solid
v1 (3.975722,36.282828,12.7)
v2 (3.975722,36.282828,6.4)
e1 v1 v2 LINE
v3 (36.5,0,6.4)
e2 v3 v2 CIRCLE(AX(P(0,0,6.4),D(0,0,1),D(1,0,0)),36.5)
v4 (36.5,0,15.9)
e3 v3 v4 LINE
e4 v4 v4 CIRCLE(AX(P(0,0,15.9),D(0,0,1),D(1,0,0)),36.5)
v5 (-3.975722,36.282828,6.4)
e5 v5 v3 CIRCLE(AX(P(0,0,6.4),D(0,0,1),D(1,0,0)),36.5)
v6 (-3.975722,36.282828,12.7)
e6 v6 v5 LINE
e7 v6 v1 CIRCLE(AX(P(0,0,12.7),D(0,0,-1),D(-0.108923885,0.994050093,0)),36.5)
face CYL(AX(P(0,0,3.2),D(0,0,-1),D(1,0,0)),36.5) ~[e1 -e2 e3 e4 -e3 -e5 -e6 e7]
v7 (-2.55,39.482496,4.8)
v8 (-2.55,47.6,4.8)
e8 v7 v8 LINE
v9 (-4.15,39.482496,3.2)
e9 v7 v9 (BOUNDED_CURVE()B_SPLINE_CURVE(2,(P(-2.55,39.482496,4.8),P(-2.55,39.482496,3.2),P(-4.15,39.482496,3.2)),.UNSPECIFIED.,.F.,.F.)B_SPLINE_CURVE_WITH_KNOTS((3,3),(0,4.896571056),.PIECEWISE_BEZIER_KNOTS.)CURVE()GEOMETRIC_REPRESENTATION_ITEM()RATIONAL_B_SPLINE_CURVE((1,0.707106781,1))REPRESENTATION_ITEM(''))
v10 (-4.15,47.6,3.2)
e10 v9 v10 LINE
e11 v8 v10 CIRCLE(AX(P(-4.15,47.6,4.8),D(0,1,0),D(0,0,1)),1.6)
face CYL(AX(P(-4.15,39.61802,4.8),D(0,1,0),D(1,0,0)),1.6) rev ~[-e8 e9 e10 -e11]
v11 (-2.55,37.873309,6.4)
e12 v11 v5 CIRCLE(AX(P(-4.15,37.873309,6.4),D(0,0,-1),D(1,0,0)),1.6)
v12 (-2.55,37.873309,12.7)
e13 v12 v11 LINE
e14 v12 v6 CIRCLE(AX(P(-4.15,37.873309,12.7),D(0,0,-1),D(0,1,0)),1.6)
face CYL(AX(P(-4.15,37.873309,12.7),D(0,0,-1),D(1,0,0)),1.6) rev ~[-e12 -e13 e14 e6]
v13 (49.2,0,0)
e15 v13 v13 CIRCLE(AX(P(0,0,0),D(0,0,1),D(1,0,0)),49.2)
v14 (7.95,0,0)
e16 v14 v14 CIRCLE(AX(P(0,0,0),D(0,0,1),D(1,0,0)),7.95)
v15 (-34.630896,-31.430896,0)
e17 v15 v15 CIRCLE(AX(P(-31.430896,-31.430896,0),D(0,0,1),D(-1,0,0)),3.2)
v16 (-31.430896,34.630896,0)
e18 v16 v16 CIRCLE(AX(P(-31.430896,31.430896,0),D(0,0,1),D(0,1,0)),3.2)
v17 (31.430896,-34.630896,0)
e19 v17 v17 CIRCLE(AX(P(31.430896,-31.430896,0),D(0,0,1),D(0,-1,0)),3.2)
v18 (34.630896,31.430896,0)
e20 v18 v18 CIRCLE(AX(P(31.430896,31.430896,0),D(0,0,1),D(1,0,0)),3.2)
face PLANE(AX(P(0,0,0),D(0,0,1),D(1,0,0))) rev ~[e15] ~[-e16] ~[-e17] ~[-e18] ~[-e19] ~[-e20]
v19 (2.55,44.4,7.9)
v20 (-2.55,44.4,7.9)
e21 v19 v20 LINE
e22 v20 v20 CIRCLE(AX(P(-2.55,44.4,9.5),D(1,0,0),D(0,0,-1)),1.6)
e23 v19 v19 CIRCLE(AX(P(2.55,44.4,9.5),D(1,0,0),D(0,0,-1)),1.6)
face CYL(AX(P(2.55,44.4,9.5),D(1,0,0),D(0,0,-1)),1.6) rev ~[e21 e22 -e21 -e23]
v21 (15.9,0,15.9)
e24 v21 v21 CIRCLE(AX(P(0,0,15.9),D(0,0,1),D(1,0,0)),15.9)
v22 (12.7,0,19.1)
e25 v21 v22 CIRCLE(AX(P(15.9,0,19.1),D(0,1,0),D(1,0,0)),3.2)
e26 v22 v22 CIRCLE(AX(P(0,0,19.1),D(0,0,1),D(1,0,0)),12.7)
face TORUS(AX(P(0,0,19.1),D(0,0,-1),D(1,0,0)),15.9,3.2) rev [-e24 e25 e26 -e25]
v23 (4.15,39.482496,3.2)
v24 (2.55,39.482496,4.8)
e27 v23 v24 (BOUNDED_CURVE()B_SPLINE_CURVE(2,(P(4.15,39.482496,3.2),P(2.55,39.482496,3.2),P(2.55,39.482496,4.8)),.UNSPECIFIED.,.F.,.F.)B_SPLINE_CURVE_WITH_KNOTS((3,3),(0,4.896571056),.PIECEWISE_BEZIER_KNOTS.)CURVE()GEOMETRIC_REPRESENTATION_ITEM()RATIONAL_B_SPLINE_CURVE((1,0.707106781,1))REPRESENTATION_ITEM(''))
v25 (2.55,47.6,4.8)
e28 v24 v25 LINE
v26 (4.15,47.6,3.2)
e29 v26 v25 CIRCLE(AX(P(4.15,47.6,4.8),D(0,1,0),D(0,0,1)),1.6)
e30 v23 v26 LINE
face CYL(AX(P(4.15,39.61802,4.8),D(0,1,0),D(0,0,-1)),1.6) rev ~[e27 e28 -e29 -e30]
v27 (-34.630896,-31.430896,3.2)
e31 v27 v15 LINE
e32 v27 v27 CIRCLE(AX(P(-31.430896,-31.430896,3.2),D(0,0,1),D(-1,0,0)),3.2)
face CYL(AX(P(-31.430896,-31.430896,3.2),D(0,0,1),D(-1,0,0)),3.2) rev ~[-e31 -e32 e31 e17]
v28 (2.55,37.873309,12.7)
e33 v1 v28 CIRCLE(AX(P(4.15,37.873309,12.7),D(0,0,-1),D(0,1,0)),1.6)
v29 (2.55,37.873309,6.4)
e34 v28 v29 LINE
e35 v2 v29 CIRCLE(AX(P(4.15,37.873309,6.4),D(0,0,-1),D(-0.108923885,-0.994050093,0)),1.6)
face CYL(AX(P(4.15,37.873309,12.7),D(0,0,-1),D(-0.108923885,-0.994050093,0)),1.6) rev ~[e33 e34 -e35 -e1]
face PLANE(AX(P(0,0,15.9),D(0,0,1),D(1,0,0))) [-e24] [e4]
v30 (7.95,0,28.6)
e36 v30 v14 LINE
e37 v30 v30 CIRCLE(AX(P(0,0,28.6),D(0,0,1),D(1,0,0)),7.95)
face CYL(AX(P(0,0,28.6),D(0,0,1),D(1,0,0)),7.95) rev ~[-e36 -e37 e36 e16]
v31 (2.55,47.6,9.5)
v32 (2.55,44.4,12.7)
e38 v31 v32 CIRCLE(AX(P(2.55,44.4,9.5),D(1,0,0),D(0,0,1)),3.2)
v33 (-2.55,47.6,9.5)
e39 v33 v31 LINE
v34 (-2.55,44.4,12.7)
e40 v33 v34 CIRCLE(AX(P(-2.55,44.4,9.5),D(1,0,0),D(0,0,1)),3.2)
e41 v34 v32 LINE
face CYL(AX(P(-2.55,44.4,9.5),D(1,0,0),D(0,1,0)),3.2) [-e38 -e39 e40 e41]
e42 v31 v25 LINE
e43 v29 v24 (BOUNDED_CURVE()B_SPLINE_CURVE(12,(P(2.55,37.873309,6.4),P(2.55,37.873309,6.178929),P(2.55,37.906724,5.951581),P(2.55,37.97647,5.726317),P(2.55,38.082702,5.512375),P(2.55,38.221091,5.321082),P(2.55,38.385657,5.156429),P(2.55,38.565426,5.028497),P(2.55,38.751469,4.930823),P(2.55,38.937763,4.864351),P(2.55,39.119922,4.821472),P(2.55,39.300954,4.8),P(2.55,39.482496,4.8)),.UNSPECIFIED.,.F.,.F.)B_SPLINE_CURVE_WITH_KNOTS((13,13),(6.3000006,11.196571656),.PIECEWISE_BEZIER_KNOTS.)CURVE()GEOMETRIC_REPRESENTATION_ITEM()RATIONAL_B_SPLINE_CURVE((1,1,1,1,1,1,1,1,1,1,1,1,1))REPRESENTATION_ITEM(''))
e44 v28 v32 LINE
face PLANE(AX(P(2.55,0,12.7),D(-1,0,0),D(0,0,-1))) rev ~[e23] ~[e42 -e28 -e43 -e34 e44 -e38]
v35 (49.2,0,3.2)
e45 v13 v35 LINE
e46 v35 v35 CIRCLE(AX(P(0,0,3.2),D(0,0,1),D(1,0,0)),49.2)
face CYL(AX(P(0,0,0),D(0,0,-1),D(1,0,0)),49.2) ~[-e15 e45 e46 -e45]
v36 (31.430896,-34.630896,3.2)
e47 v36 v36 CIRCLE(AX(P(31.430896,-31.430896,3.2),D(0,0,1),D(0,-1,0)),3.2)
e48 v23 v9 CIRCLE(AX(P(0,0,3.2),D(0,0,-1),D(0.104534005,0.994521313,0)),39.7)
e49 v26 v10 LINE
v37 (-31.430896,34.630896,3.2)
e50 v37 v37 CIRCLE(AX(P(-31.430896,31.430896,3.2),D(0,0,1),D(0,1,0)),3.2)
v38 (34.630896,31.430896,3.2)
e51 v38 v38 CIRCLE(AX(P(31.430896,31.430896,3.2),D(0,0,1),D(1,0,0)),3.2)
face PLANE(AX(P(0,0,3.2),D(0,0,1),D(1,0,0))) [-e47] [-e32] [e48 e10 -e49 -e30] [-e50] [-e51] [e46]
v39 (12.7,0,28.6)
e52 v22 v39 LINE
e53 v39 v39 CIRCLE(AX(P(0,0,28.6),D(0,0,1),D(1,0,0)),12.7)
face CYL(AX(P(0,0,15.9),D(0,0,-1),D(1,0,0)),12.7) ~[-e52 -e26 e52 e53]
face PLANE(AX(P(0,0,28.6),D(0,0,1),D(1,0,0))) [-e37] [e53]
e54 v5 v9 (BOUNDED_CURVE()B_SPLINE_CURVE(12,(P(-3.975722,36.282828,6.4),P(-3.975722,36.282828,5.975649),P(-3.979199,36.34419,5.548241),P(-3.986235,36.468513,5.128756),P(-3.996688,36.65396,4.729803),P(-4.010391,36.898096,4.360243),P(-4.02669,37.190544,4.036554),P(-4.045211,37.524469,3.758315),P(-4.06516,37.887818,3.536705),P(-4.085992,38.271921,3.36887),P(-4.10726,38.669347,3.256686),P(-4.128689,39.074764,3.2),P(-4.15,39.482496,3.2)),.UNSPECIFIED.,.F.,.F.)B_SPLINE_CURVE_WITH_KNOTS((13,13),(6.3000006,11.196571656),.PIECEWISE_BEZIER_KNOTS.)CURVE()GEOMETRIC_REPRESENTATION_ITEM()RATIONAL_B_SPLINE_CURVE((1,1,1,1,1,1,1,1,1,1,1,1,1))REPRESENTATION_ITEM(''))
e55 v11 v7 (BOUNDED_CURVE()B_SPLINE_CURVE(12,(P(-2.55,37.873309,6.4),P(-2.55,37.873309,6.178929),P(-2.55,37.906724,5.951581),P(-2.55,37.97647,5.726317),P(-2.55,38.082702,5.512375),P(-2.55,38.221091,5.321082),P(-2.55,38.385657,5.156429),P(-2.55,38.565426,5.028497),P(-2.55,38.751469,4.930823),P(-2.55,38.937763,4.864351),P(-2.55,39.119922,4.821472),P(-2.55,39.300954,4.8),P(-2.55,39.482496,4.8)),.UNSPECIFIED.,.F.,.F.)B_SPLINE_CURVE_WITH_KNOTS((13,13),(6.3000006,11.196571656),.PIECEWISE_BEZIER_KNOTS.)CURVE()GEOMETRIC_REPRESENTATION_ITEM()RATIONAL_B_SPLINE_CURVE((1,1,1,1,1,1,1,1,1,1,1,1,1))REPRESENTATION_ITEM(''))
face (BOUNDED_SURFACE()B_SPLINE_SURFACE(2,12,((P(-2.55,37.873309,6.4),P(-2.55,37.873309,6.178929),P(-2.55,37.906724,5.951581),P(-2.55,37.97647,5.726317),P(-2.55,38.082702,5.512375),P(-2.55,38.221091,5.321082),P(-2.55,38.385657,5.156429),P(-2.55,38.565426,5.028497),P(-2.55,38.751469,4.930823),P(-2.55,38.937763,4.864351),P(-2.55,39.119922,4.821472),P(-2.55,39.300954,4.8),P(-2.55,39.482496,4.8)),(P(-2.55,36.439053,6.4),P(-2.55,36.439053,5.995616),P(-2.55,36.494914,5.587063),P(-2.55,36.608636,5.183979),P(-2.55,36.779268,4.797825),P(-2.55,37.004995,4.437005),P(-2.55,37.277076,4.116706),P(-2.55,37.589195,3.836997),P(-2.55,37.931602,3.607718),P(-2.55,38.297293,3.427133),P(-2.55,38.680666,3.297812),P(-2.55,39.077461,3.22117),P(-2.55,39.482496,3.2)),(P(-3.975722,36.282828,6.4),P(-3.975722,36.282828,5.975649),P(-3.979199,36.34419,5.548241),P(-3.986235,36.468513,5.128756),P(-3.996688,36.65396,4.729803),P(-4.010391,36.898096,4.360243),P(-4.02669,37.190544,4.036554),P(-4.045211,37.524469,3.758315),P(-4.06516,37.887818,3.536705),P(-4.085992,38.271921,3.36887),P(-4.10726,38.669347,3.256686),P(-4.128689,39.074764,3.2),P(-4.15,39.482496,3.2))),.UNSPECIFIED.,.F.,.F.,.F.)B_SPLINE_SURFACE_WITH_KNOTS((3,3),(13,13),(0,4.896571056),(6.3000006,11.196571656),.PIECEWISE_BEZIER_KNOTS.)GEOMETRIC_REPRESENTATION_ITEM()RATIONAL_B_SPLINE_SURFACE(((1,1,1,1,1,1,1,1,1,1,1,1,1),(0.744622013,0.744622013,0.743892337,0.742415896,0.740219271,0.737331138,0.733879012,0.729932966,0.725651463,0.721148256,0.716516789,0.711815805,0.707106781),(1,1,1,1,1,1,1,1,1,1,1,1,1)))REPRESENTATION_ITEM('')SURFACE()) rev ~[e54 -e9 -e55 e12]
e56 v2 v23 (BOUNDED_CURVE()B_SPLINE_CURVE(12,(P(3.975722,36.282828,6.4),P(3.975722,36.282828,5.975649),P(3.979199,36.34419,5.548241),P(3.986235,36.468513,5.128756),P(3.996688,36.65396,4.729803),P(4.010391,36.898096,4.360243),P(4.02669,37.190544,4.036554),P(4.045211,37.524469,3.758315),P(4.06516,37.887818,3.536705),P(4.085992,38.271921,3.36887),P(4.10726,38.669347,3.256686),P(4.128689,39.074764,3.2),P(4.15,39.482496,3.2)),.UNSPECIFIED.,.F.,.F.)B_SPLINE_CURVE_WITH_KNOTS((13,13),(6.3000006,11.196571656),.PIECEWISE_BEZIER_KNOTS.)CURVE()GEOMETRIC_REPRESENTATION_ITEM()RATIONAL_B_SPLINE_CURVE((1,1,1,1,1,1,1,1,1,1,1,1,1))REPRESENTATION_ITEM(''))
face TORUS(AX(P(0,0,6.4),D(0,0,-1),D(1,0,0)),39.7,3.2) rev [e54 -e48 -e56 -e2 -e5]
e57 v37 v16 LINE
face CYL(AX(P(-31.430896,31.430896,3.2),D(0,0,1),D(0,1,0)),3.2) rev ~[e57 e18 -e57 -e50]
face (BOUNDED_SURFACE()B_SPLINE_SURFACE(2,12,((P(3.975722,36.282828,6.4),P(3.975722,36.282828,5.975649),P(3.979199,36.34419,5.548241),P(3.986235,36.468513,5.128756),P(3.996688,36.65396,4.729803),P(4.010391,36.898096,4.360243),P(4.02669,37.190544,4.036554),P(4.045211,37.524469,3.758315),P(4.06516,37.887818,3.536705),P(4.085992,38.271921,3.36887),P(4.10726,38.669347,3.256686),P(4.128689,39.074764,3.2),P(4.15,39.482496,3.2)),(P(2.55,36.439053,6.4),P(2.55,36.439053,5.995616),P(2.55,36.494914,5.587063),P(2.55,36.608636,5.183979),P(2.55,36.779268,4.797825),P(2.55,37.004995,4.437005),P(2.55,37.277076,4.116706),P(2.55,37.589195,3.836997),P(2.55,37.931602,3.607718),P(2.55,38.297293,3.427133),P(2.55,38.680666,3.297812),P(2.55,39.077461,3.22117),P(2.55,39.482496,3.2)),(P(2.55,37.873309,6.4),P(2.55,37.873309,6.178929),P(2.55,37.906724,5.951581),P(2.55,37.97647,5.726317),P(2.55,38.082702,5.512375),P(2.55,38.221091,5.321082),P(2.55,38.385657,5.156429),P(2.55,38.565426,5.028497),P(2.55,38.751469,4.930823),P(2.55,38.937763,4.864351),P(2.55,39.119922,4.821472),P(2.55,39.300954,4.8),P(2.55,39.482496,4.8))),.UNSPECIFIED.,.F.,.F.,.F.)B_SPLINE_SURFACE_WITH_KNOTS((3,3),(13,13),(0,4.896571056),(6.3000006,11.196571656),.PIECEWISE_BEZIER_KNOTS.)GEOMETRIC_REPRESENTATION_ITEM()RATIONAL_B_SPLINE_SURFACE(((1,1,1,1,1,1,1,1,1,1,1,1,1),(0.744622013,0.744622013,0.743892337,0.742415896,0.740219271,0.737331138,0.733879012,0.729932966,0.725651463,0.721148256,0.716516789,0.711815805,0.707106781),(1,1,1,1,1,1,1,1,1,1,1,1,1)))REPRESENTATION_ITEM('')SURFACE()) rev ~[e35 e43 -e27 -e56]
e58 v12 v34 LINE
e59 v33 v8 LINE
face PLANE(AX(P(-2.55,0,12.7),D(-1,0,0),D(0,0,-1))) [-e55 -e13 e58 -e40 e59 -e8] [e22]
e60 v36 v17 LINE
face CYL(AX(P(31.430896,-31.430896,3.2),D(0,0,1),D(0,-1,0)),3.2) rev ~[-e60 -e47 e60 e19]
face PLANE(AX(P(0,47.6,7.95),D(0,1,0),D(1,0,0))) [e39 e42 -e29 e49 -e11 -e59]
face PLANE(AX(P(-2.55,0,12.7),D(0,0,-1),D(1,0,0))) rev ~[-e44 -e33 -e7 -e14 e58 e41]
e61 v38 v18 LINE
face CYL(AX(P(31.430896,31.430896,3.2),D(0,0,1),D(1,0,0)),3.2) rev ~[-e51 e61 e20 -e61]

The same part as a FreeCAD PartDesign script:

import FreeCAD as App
import Part
import Sketcher
from FreeCAD import Vector
Q = App.Units.Quantity


def edges_at(feature, points):
    """Names of the edges that pass closest to the given points."""
    edges = feature.Shape.Edges
    near = lambda p: min(range(len(edges)), key=lambda i: edges[i].distToShape(Part.Vertex(*p))[0])
    return sorted({f"Edge{near(p) + 1}" for p in points})


def add_polygon(sketch, points):
    """Adds a closed chain of lines whose ends are joined by coincident constraints."""
    first, n = sketch.GeometryCount, len(points)
    for a, b in zip(points, points[1:] + points[:1]):
        sketch.addGeometry(Part.LineSegment(App.Vector(*a, 0), App.Vector(*b, 0)), False)
    for i in range(n):
        sketch.addConstraint(Sketcher.Constraint("Coincident", first + i, 2, first + (i + 1) % n, 1))

doc = App.newDocument("Part")
params = doc.addObject("Spreadsheet::Sheet", "Params")
for row, (alias, value) in enumerate([
    ("sketch1_diameter", "98.4 mm"),
    ("pad1_length", "3.2 mm"),
    ("sketch2_diameter", "6.4 mm"),
    ("sketch3_diameter", "73 mm"),
    ("pad2_length", "12.7 mm"),
    ("sketch4_diameter", "25.4 mm"),
    ("pad3_length", "12.7 mm"),
    ("fillet_radius", "3.2 mm"),
    ("sketch5_width", "5.1 mm"),
    ("sketch5_height", "9.5 mm"),
    ("pad4_length", "47.6 mm"),
    ("sketch6_diameter", "15.9 mm"),
    ("fillet2_radius", "3.2 mm"),
    ("sketch7_diameter", "3.2 mm"),
    ("fillet3_radius", "1.6 mm"),
], start=1):
    params.set(f"A{row}", alias)
    params.set(f"B{row}", "=" + value)
    params.setAlias(f"B{row}", alias)

body = doc.addObject("PartDesign::Body", "Body")

# Sketch on XY plane
sketch1 = doc.addObject("Sketcher::SketchObject", "Sketch")
body.addObject(sketch1)
sketch1.AttachmentSupport = (doc.XY_Plane, [""])
sketch1.MapMode = "FlatFace"
sketch1.addGeometry(Part.Circle(Vector(0, 0, 0), Vector(0, 0, 1), 49), False)
sketch1.addConstraint([
    Sketcher.Constraint("Coincident", 0, 3, -1, 1),
    Sketcher.Constraint("Diameter", 0, Q("98.4 mm")),
])
sketch1.setExpression("Constraints[1]", "Params.sketch1_diameter")
pad1 = doc.addObject("PartDesign::Pad", "Pad")
body.addObject(pad1)
pad1.Profile = sketch1
pad1.setExpression("Length", "Params.pad1_length")

# Sketch on XY plane
sketch2 = doc.addObject("Sketcher::SketchObject", "Sketch001")
body.addObject(sketch2)
sketch2.AttachmentSupport = (doc.XY_Plane, [""])
sketch2.MapMode = "FlatFace"
sketch2.AttachmentOffset = App.Placement(Vector(0, 0, 3.2), App.Rotation())
sketch2.addGeometry(Part.Circle(Vector(31.4, 31.4, 0), Vector(0, 0, 1), 3.2), False)
sketch2.addConstraint([
    Sketcher.Constraint("Diameter", 0, Q("6.4 mm")),
    Sketcher.Constraint("DistanceX", -1, 1, 0, 3, Q("31.430896 mm")),
    Sketcher.Constraint("DistanceY", -1, 1, 0, 3, Q("31.430896 mm")),
])
sketch2.setExpression("Constraints[0]", "Params.sketch2_diameter")
pocket1 = doc.addObject("PartDesign::Pocket", "Pocket")
body.addObject(pocket1)
pocket1.Profile = sketch2
pocket1.Type = "ThroughAll"
doc.recompute()

polarpattern = doc.addObject("PartDesign::PolarPattern", "PolarPattern")
body.addObject(polarpattern)
polarpattern.Originals = [pocket1]
polarpattern.Axis = (doc.Z_Axis, [""])
polarpattern.Angle = 360
polarpattern.Occurrences = 4
body.Tip = polarpattern

# Sketch on XY plane
sketch3 = doc.addObject("Sketcher::SketchObject", "Sketch002")
body.addObject(sketch3)
sketch3.AttachmentSupport = (doc.XY_Plane, [""])
sketch3.MapMode = "FlatFace"
sketch3.AttachmentOffset = App.Placement(Vector(0, 0, 3.2), App.Rotation())
sketch3.addGeometry(Part.Circle(Vector(0, 0, 0), Vector(0, 0, 1), 36), False)
sketch3.addConstraint([
    Sketcher.Constraint("Coincident", 0, 3, -1, 1),
    Sketcher.Constraint("Diameter", 0, Q("73 mm")),
])
sketch3.setExpression("Constraints[1]", "Params.sketch3_diameter")
pad2 = doc.addObject("PartDesign::Pad", "Pad001")
body.addObject(pad2)
pad2.Profile = sketch3
pad2.setExpression("Length", "Params.pad2_length")

# Sketch on XY plane
sketch4 = doc.addObject("Sketcher::SketchObject", "Sketch003")
body.addObject(sketch4)
sketch4.AttachmentSupport = (doc.XY_Plane, [""])
sketch4.MapMode = "FlatFace"
sketch4.AttachmentOffset = App.Placement(Vector(0, 0, 15.9), App.Rotation())
sketch4.addGeometry(Part.Circle(Vector(0, 0, 0), Vector(0, 0, 1), 13), False)
sketch4.addConstraint([
    Sketcher.Constraint("Coincident", 0, 3, -1, 1),
    Sketcher.Constraint("Diameter", 0, Q("25.4 mm")),
])
sketch4.setExpression("Constraints[1]", "Params.sketch4_diameter")
pad3 = doc.addObject("PartDesign::Pad", "Pad002")
body.addObject(pad3)
pad3.Profile = sketch4
pad3.setExpression("Length", "Params.pad3_length")
doc.recompute()

fillet = doc.addObject("PartDesign::Fillet", "Fillet")
body.addObject(fillet)
fillet.Base = (pad3, edges_at(pad3, [(-36.5, 0, 3.2), (-12.7, 0, 15.9)]))
fillet.setExpression("Radius", "Params.fillet_radius")

# Sketch on XZ plane
sketch5 = doc.addObject("Sketcher::SketchObject", "Sketch004")
body.addObject(sketch5)
sketch5.AttachmentSupport = (doc.XZ_Plane, [""])
sketch5.MapMode = "FlatFace"
add_polygon(sketch5, [(-3, 3), (-3, 13), (3, 13), (3, 3)])  # lines 0-3
sketch5.addConstraint([
    Sketcher.Constraint("Vertical", 0),
    Sketcher.Constraint("Horizontal", 1),
    Sketcher.Constraint("Vertical", 2),
    Sketcher.Constraint("Horizontal", 3),
    Sketcher.Constraint("DistanceX", 1, 1, 1, 2, Q("5.1 mm")),
    Sketcher.Constraint("DistanceY", 0, 1, 0, 2, Q("9.5 mm")),
    Sketcher.Constraint("DistanceY", -1, 1, 0, 2, Q("12.7 mm")),
    Sketcher.Constraint("DistanceX", 0, 2, -1, 1, Q("2.55 mm")),
])
sketch5.setExpression("Constraints[8]", "Params.sketch5_width")
sketch5.setExpression("Constraints[9]", "Params.sketch5_height")
pad4 = doc.addObject("PartDesign::Pad", "Pad003")
body.addObject(pad4)
pad4.Profile = sketch5
pad4.setExpression("Length", "Params.pad4_length")
pad4.Reversed = True

# Sketch on XY plane
sketch6 = doc.addObject("Sketcher::SketchObject", "Sketch005")
body.addObject(sketch6)
sketch6.AttachmentSupport = (doc.XY_Plane, [""])
sketch6.MapMode = "FlatFace"
sketch6.AttachmentOffset = App.Placement(Vector(0, 0, 28.6), App.Rotation())
sketch6.addGeometry(Part.Circle(Vector(0, 0, 0), Vector(0, 0, 1), 8), False)
sketch6.addConstraint([
    Sketcher.Constraint("Coincident", 0, 3, -1, 1),
    Sketcher.Constraint("Diameter", 0, Q("15.9 mm")),
])
sketch6.setExpression("Constraints[1]", "Params.sketch6_diameter")
pocket2 = doc.addObject("PartDesign::Pocket", "Pocket001")
body.addObject(pocket2)
pocket2.Profile = sketch6
pocket2.Type = "ThroughAll"
doc.recompute()

fillet2 = doc.addObject("PartDesign::Fillet", "Fillet001")
body.addObject(fillet2)
fillet2.Base = (pocket2, edges_at(pocket2, [(0, 47.6, 12.7)]))
fillet2.setExpression("Radius", "Params.fillet2_radius")

# Sketch on YZ plane
sketch7 = doc.addObject("Sketcher::SketchObject", "Sketch006")
body.addObject(sketch7)
sketch7.AttachmentSupport = (doc.YZ_Plane, [""])
sketch7.MapMode = "FlatFace"
sketch7.AttachmentOffset = App.Placement(Vector(0, 0, 2.55), App.Rotation())
sketch7.addGeometry(Part.Circle(Vector(44.4, 9.5, 0), Vector(0, 0, 1), 1.6), False)
sketch7.addConstraint([
    Sketcher.Constraint("Diameter", 0, Q("3.2 mm")),
    Sketcher.Constraint("DistanceX", -1, 1, 0, 3, Q("44.4 mm")),
    Sketcher.Constraint("DistanceY", -1, 1, 0, 3, Q("9.5 mm")),
])
sketch7.setExpression("Constraints[0]", "Params.sketch7_diameter")
pocket3 = doc.addObject("PartDesign::Pocket", "Pocket002")
body.addObject(pocket3)
pocket3.Profile = sketch7
pocket3.Type = "UpToFirst"
doc.recompute()

fillet3 = doc.addObject("PartDesign::Fillet", "Fillet002")
body.addObject(fillet3)
fillet3.Base = (pocket3, edges_at(pocket3, [
    (2.55, 43.609, 3.2),
    (-2.55, 36.411, 9.55),
    (-2.55, 43.609, 3.2),
    (2.55, 36.411, 9.55),
]))
fillet3.setExpression("Radius", "Params.fillet3_radius")

doc.recompute()
